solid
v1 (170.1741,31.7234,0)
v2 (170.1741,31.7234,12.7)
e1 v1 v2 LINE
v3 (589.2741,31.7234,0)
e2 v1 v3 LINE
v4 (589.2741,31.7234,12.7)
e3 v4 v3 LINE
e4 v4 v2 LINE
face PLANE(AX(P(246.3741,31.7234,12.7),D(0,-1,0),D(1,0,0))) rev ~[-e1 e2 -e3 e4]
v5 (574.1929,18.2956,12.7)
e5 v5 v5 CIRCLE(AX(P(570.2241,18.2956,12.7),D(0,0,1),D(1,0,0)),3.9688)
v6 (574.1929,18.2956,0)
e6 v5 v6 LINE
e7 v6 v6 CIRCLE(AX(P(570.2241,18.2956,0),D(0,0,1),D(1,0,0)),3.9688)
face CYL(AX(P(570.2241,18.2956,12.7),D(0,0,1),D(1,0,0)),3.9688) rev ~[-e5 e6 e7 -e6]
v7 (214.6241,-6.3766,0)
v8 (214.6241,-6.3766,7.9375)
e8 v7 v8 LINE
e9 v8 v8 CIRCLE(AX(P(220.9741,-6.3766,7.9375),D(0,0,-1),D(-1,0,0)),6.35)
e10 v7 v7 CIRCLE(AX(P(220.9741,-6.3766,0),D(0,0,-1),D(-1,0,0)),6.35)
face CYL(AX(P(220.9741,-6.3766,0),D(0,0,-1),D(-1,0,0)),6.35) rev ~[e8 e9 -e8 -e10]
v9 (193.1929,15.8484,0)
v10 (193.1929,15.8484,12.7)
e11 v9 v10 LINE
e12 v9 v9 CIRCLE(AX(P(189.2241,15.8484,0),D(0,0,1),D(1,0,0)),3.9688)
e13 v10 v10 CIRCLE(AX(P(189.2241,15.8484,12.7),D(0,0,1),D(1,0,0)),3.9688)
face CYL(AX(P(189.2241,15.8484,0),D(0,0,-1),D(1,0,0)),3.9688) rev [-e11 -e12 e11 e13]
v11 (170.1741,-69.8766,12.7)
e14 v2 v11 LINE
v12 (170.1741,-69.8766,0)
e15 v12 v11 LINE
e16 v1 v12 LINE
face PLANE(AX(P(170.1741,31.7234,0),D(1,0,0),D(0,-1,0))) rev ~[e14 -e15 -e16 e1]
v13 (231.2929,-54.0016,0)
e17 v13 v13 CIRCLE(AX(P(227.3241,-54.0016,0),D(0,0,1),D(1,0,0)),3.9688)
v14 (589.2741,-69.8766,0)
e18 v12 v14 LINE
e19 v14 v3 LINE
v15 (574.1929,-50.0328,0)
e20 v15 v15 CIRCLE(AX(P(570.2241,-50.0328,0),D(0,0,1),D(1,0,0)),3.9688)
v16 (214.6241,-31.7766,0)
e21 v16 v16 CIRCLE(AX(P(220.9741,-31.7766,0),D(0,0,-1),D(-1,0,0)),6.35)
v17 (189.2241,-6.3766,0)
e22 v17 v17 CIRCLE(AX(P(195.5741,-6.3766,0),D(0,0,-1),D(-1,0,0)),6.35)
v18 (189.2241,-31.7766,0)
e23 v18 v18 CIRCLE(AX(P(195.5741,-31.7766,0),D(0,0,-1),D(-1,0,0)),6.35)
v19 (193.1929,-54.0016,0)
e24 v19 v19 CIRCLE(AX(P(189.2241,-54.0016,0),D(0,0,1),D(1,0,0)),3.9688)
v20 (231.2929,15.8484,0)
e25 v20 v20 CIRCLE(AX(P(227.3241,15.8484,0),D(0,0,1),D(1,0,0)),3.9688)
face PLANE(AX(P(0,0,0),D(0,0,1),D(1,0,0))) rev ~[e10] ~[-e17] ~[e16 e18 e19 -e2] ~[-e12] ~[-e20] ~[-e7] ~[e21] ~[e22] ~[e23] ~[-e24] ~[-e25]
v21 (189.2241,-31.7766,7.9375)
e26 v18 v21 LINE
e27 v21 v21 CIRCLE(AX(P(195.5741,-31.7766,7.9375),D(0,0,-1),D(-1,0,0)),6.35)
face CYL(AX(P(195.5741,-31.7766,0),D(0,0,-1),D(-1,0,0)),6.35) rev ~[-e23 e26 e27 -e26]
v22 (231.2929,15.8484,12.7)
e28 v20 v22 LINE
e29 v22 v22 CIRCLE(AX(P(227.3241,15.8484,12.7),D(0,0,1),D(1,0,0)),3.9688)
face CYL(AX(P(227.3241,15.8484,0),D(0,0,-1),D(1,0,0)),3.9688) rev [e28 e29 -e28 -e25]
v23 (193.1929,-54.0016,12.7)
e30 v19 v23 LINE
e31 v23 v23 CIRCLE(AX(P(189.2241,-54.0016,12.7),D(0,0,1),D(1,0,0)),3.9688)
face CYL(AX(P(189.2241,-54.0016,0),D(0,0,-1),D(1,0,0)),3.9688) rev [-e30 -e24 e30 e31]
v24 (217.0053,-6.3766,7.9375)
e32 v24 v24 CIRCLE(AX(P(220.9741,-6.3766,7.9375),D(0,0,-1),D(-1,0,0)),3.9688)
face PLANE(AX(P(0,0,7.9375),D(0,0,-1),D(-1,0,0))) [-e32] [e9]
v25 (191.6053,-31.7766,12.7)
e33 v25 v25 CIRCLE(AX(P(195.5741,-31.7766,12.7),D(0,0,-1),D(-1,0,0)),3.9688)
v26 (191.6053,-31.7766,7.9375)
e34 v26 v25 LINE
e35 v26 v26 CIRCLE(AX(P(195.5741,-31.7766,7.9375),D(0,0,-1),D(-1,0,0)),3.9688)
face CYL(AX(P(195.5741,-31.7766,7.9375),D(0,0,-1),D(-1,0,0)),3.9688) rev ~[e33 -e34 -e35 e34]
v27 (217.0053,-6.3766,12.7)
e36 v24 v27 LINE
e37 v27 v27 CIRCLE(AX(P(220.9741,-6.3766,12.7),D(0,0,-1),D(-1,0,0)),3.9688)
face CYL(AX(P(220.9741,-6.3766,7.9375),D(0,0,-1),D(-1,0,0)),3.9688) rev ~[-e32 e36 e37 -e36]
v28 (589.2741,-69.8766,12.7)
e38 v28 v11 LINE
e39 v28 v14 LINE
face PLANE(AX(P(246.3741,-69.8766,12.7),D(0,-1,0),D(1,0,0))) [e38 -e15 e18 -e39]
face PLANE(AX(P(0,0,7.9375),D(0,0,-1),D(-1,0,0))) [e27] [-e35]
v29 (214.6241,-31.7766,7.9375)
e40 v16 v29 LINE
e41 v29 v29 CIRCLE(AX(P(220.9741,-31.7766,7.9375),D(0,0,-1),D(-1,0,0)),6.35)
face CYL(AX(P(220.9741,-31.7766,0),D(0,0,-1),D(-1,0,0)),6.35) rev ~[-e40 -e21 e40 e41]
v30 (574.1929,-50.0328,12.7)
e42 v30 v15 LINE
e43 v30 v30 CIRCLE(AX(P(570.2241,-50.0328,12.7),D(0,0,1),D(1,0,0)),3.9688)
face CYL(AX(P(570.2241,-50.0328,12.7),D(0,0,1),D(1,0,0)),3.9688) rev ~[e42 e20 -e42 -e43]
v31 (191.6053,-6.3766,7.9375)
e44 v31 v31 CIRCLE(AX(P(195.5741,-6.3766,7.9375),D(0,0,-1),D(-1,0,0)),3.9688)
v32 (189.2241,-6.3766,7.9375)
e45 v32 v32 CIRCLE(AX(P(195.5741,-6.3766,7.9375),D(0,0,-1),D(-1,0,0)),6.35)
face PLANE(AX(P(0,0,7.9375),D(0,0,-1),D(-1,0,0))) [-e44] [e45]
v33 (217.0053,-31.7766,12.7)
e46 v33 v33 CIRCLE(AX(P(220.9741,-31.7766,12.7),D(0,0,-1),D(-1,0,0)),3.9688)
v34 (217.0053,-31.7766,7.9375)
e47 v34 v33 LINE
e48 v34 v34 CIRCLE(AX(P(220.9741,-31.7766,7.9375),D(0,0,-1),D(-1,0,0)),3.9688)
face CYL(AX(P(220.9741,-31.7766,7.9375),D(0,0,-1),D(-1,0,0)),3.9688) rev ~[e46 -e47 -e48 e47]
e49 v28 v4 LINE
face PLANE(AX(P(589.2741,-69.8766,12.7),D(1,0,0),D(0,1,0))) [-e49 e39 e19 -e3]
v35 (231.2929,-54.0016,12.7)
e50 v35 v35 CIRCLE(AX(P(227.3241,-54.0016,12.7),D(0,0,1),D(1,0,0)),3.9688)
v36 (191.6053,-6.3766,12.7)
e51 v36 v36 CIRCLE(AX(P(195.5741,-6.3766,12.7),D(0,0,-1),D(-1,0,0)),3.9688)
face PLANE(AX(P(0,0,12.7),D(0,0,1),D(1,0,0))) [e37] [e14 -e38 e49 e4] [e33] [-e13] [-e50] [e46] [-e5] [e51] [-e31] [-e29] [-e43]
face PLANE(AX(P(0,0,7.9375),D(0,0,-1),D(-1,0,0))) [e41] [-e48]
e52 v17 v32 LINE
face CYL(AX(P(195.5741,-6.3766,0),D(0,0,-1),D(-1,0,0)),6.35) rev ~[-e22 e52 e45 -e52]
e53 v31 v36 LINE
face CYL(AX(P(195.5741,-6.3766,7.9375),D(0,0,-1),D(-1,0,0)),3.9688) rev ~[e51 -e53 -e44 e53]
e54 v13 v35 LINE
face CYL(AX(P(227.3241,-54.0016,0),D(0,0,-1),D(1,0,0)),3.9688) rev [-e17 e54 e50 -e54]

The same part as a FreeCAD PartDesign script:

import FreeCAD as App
import Part
import Sketcher
Q = App.Units.Quantity


def add_polygon(sketch, points):
    """Adds a closed chain of lines whose ends are joined by coincident constraints."""
    first, n = sketch.GeometryCount, len(points)
    for a, b in zip(points, points[1:] + points[:1]):
        sketch.addGeometry(Part.LineSegment(App.Vector(*a, 0), App.Vector(*b, 0)), False)
    for i in range(n):
        sketch.addConstraint(Sketcher.Constraint("Coincident", first + i, 2, first + (i + 1) % n, 1))

doc = App.newDocument("Part")
body = doc.addObject("PartDesign::Body", "Body")

# Sketch on XY plane
sketch1 = body.newObject("Sketcher::SketchObject", "Sketch")
sketch1.AttachmentSupport = (doc.getObject("XY_Plane"), [""])
sketch1.MapMode = "FlatFace"
add_polygon(sketch1, [(246.4, -69.9), (246.4, 31.7), (170.2, 31.7), (170.2, -69.9)])  # lines 0-3
sketch1.addGeometry(Part.Circle(App.Vector(189.2, -54, 0), App.Vector(0, 0, 1), 4), False)  # 4
sketch1.addGeometry(Part.Circle(App.Vector(227.3, -54, 0), App.Vector(0, 0, 1), 4), False)  # 5
sketch1.addGeometry(Part.Circle(App.Vector(189.2, 15.8, 0), App.Vector(0, 0, 1), 4), False)  # 6
sketch1.addGeometry(Part.Circle(App.Vector(227.3, 15.8, 0), App.Vector(0, 0, 1), 4), False)  # 7
sketch1.addConstraint([
    Sketcher.Constraint("Vertical", 0),
    Sketcher.Constraint("Horizontal", 1),
    Sketcher.Constraint("Vertical", 2),
    Sketcher.Constraint("Horizontal", 3),
    Sketcher.Constraint("Equal", 4, 5),
    Sketcher.Constraint("Equal", 5, 6),
    Sketcher.Constraint("Equal", 6, 7),
    Sketcher.Constraint("Horizontal", 4, 3, 5, 3),
    Sketcher.Constraint("Horizontal", 6, 3, 7, 3),
    Sketcher.Constraint("Vertical", 4, 3, 6, 3),
    Sketcher.Constraint("Vertical", 5, 3, 7, 3),
    Sketcher.Constraint("DistanceX", 1, 2, 1, 1, Q("3 in")),
    Sketcher.Constraint("DistanceY", 0, 1, 0, 2, Q("4 in")),
    Sketcher.Constraint("Diameter", 4, Q("0.3125 in")),
    Sketcher.Constraint("DistanceX", 7, 3, 0, 2, Q("0.75 in")),
    Sketcher.Constraint("DistanceX", 1, 2, 6, 3, Q("0.75 in")),
    Sketcher.Constraint("DistanceY", 7, 3, 0, 2, Q("0.625 in")),
    Sketcher.Constraint("DistanceY", 2, 2, 4, 3, Q("0.625 in")),
    Sketcher.Constraint("DistanceX", -1, 1, 4, 3, Q("189.224 mm")),
    Sketcher.Constraint("DistanceY", 4, 3, -1, 1, Q("54.0016 mm")),
])
pad1 = body.newObject("PartDesign::Pad", "Pad")
pad1.Profile = sketch1
pad1.Length = Q("0.5 in")

# Sketch on XY plane
sketch2 = body.newObject("Sketcher::SketchObject", "Sketch001")
sketch2.AttachmentSupport = (doc.getObject("XY_Plane"), [""])
sketch2.MapMode = "FlatFace"
sketch2.addGeometry([
    Part.Circle(App.Vector(196, -6, 0), App.Vector(0, 0, 1), 6),
    Part.Circle(App.Vector(196, -32, 0), App.Vector(0, 0, 1), 6),
    Part.Circle(App.Vector(221, -6, 0), App.Vector(0, 0, 1), 6),
    Part.Circle(App.Vector(221, -32, 0), App.Vector(0, 0, 1), 6),
], False)
sketch2.addConstraint([
    Sketcher.Constraint("Equal", 0, 1),
    Sketcher.Constraint("Equal", 1, 2),
    Sketcher.Constraint("Equal", 2, 3),
    Sketcher.Constraint("Horizontal", 0, 3, 2, 3),
    Sketcher.Constraint("Horizontal", 1, 3, 3, 3),
    Sketcher.Constraint("Vertical", 0, 3, 1, 3),
    Sketcher.Constraint("Vertical", 2, 3, 3, 3),
    Sketcher.Constraint("Diameter", 0, Q("0.5 in")),
    Sketcher.Constraint("DistanceY", 1, 3, 0, 3, Q("1 in")),
    Sketcher.Constraint("DistanceX", 0, 3, 2, 3, Q("1 in")),
    Sketcher.Constraint("DistanceX", -1, 1, 0, 3, Q("195.574 mm")),
    Sketcher.Constraint("DistanceY", 0, 3, -1, 1, Q("6.3766 mm")),
])
pocket1 = body.newObject("PartDesign::Pocket", "Pocket")
pocket1.Profile = sketch2
pocket1.Length = Q("0.3125 in")
pocket1.Reversed = True

# Sketch on XY plane
sketch3 = body.newObject("Sketcher::SketchObject", "Sketch002")
sketch3.AttachmentSupport = (doc.getObject("XY_Plane"), [""])
sketch3.MapMode = "FlatFace"
sketch3.AttachmentOffset = App.Placement(App.Vector(0, 0, 0.3125 * 25.4), App.Rotation())
sketch3.addGeometry([
    Part.Circle(App.Vector(195.6, -6.4, 0), App.Vector(0, 0, 1), 4),
    Part.Circle(App.Vector(195.6, -31.8, 0), App.Vector(0, 0, 1), 4),
    Part.Circle(App.Vector(221, -6.4, 0), App.Vector(0, 0, 1), 4),
    Part.Circle(App.Vector(221, -31.8, 0), App.Vector(0, 0, 1), 4),
], False)
sketch3.addConstraint([
    Sketcher.Constraint("Equal", 0, 1),
    Sketcher.Constraint("Equal", 1, 2),
    Sketcher.Constraint("Equal", 2, 3),
    Sketcher.Constraint("Horizontal", 0, 3, 2, 3),
    Sketcher.Constraint("Horizontal", 1, 3, 3, 3),
    Sketcher.Constraint("Vertical", 0, 3, 1, 3),
    Sketcher.Constraint("Vertical", 2, 3, 3, 3),
    Sketcher.Constraint("Diameter", 0, Q("0.3125 in")),
    Sketcher.Constraint("DistanceY", 1, 3, 0, 3, Q("1 in")),
    Sketcher.Constraint("DistanceX", 0, 3, 2, 3, Q("1 in")),
    Sketcher.Constraint("DistanceX", -1, 1, 0, 3, Q("195.574 mm")),
    Sketcher.Constraint("DistanceY", 0, 3, -1, 1, Q("6.3766 mm")),
])
pocket2 = body.newObject("PartDesign::Pocket", "Pocket001")
pocket2.Profile = sketch3
pocket2.Length = Q("0.3125 in")
pocket2.Reversed = True

# Sketch on XY plane
sketch4 = body.newObject("Sketcher::SketchObject", "Sketch003")
sketch4.AttachmentSupport = (doc.getObject("XY_Plane"), [""])
sketch4.MapMode = "FlatFace"
sketch4.AttachmentOffset = App.Placement(App.Vector(0, 0, 0.5 * 25.4), App.Rotation())
add_polygon(sketch4, [(246.4, -69.9), (589.3, -69.9), (589.3, 31.7), (246.4, 31.7)])  # lines 0-3
sketch4.addGeometry(Part.Circle(App.Vector(570.2, -50, 0), App.Vector(0, 0, 1), 4), False)  # 4
sketch4.addGeometry(Part.Circle(App.Vector(570.2, 18.3, 0), App.Vector(0, 0, 1), 4), False)  # 5
sketch4.addConstraint([
    Sketcher.Constraint("Horizontal", 0),
    Sketcher.Constraint("Vertical", 1),
    Sketcher.Constraint("Horizontal", 2),
    Sketcher.Constraint("Vertical", 3),
    Sketcher.Constraint("Equal", 4, 5),
    Sketcher.Constraint("Vertical", 4, 3, 5, 3),
    Sketcher.Constraint("Diameter", 4, Q("0.3125 in")),
    Sketcher.Constraint("DistanceY", 1, 1, 1, 2, Q("4 in")),
    Sketcher.Constraint("DistanceX", 4, 3, 0, 2, Q("0.75 in")),
    Sketcher.Constraint("DistanceX", 0, 1, 0, 2, Q("13.5 in")),
    Sketcher.Constraint("DistanceY", 0, 2, 4, 3, Q("0.781252 in")),
    Sketcher.Constraint("DistanceY", 4, 3, -1, 1, Q("1.9698 in")),
    Sketcher.Constraint("DistanceY", -1, 1, 5, 3, Q("0.7203 in")),
    Sketcher.Constraint("DistanceX", -1, 1, 4, 3, Q("570.224 mm")),
])
pad2 = body.newObject("PartDesign::Pad", "Pad001")
pad2.Profile = sketch4
pad2.Length = Q("0.5 in")
pad2.Reversed = True

doc.recompute()
